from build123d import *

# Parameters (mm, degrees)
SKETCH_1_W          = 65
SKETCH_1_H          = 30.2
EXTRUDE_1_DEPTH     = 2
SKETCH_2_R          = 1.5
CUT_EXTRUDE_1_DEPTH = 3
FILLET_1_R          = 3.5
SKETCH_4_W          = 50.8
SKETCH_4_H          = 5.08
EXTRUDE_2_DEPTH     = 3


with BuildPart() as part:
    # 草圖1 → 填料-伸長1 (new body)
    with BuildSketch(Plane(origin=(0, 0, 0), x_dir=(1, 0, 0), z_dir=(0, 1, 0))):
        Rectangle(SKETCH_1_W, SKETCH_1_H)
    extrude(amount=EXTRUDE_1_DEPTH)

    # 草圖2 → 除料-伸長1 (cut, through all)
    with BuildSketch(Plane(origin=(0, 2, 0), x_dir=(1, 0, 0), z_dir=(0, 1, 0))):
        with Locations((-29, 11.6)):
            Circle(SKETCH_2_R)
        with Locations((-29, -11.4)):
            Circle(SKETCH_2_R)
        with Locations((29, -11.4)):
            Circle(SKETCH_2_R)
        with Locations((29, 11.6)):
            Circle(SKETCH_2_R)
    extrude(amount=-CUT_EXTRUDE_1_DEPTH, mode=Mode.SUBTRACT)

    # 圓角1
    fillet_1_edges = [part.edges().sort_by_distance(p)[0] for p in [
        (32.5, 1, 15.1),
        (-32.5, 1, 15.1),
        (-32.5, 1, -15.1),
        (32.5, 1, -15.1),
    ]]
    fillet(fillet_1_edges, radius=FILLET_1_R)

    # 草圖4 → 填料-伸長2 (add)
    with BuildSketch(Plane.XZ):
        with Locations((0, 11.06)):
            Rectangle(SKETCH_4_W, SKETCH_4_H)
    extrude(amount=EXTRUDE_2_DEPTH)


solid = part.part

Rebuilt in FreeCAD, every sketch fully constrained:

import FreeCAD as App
import Part
import Sketcher

V = App.Vector


def edges_at(feature, points):
    """Names of the edges that pass closest to the given points."""
    edges = feature.Shape.Edges
    near = lambda p: min(range(len(edges)), key=lambda i: edges[i].distToShape(Part.Vertex(*p))[0])
    return sorted({f"Edge{near(p) + 1}" for p in points})

doc = App.newDocument("Part")
params = doc.addObject("Spreadsheet::Sheet", "Params")
for row, (alias, value) in enumerate([
    ("sketch1_width", "65 mm"),
    ("sketch1_height", "30.2 mm"),
    ("pad1_length", "2 mm"),
    ("sketch2_diameter", "3 mm"),
    ("fillet_radius", "3.5 mm"),
    ("sketch3_width", "50.8 mm"),
    ("sketch3_height", "5.08 mm"),
    ("pad2_length", "3 mm"),
], start=1):
    params.set(f"A{row}", alias)
    params.set(f"B{row}", "=" + value)
    params.setAlias(f"B{row}", alias)

body = doc.addObject("PartDesign::Body", "Body")

# Sketch on XZ plane
sketch1 = body.newObject("Sketcher::SketchObject", "Sketch")
sketch1.AttachmentSupport = (doc.getObject("XZ_Plane"), [""])
sketch1.MapMode = "FlatFace"
sketch1.addGeometry(Part.LineSegment(V(-32, -15, 0), V(-32, 15, 0)), False)
sketch1.addGeometry(Part.LineSegment(V(-32, 15, 0), V(32, 15, 0)), False)
sketch1.addGeometry(Part.LineSegment(V(32, 15, 0), V(32, -15, 0)), False)
sketch1.addGeometry(Part.LineSegment(V(32, -15, 0), V(-32, -15, 0)), False)
sketch1.addConstraint(Sketcher.Constraint("Coincident", 0, 2, 1, 1))
sketch1.addConstraint(Sketcher.Constraint("Coincident", 1, 2, 2, 1))
sketch1.addConstraint(Sketcher.Constraint("Coincident", 2, 2, 3, 1))
sketch1.addConstraint(Sketcher.Constraint("Coincident", 3, 2, 0, 1))
sketch1.addConstraint(Sketcher.Constraint("Vertical", 0))
sketch1.addConstraint(Sketcher.Constraint("Horizontal", 1))
sketch1.addConstraint(Sketcher.Constraint("Vertical", 2))
sketch1.addConstraint(Sketcher.Constraint("Horizontal", 3))
sketch1.addConstraint(Sketcher.Constraint("Symmetric", 0, 2, 2, 2, -1, 1))
sketch1.addConstraint(Sketcher.Constraint("DistanceX", 1, 1, 1, 2, 65.0))
sketch1.addConstraint(Sketcher.Constraint("DistanceY", 0, 1, 0, 2, 30.2))
sketch1.setExpression("Constraints[9]", "Params.sketch1_width")
sketch1.setExpression("Constraints[10]", "Params.sketch1_height")
pad1 = body.newObject("PartDesign::Pad", "Pad")
pad1.Profile = sketch1
pad1.setExpression("Length", "Params.pad1_length")
pad1.Reversed = True

# Sketch on XZ plane
sketch2 = body.newObject("Sketcher::SketchObject", "Sketch001")
sketch2.AttachmentSupport = (doc.getObject("XZ_Plane"), [""])
sketch2.MapMode = "FlatFace"
sketch2.AttachmentOffset = App.Placement(V(0, 0, -2), App.Rotation())
sketch2.addGeometry(Part.Circle(V(-29, -11.6, 0), V(0, 0, 1), 1.5), False)
sketch2.addGeometry(Part.Circle(V(-29, 11.4, 0), V(0, 0, 1), 1.5), False)
sketch2.addGeometry(Part.Circle(V(29, 11.4, 0), V(0, 0, 1), 1.5), False)
sketch2.addGeometry(Part.Circle(V(29, -11.6, 0), V(0, 0, 1), 1.5), False)
sketch2.addConstraint(Sketcher.Constraint("Equal", 0, 1))
sketch2.addConstraint(Sketcher.Constraint("Equal", 1, 2))
sketch2.addConstraint(Sketcher.Constraint("Equal", 2, 3))
sketch2.addConstraint(Sketcher.Constraint("Symmetric", 1, 3, 2, 3, -2))
sketch2.addConstraint(Sketcher.Constraint("Symmetric", 0, 3, 3, 3, -2))
sketch2.addConstraint(Sketcher.Constraint("Vertical", 0, 3, 1, 3))
sketch2.addConstraint(Sketcher.Constraint("Diameter", 0, 3.0))
sketch2.addConstraint(Sketcher.Constraint("DistanceX", 0, 3, -1, 1, 29.0))
sketch2.addConstraint(Sketcher.Constraint("DistanceY", 0, 3, 1, 3, 23.0))
sketch2.addConstraint(Sketcher.Constraint("DistanceY", 0, 3, -1, 1, 11.6))
sketch2.setExpression("Constraints[6]", "Params.sketch2_diameter")
pocket1 = body.newObject("PartDesign::Pocket", "Pocket")
pocket1.Profile = sketch2
pocket1.Type = "ThroughAll"
pocket1.Reversed = True
doc.recompute()

fillet = body.newObject("PartDesign::Fillet", "Fillet")
fillet.Base = (pocket1, edges_at(pocket1, [
    (32.5, 1, 15.1),
    (-32.5, 1, 15.1),
    (-32.5, 1, -15.1),
    (32.5, 1, -15.1),
]))
fillet.setExpression("Radius", "Params.fillet_radius")

# Sketch on XZ plane
sketch3 = body.newObject("Sketcher::SketchObject", "Sketch002")
sketch3.AttachmentSupport = (doc.getObject("XZ_Plane"), [""])
sketch3.MapMode = "FlatFace"
sketch3.addGeometry(Part.LineSegment(V(-25, 14, 0), V(-25, 9, 0)), False)
sketch3.addGeometry(Part.LineSegment(V(-25, 9, 0), V(25, 9, 0)), False)
sketch3.addGeometry(Part.LineSegment(V(25, 9, 0), V(25, 14, 0)), False)
sketch3.addGeometry(Part.LineSegment(V(25, 14, 0), V(-25, 14, 0)), False)
sketch3.addConstraint(Sketcher.Constraint("Coincident", 0, 2, 1, 1))
sketch3.addConstraint(Sketcher.Constraint("Coincident", 1, 2, 2, 1))
sketch3.addConstraint(Sketcher.Constraint("Coincident", 2, 2, 3, 1))
sketch3.addConstraint(Sketcher.Constraint("Coincident", 3, 2, 0, 1))
sketch3.addConstraint(Sketcher.Constraint("Vertical", 0))
sketch3.addConstraint(Sketcher.Constraint("Horizontal", 1))
sketch3.addConstraint(Sketcher.Constraint("Vertical", 2))
sketch3.addConstraint(Sketcher.Constraint("Horizontal", 3))
sketch3.addConstraint(Sketcher.Constraint("DistanceX", 1, 1, 1, 2, 50.8))
sketch3.addConstraint(Sketcher.Constraint("DistanceY", 0, 2, 0, 1, 5.08))
sketch3.addConstraint(Sketcher.Constraint("DistanceX", 0, 2, -1, 1, 25.4))
sketch3.addConstraint(Sketcher.Constraint("DistanceY", -1, 1, 2, 2, 13.6))
sketch3.setExpression("Constraints[8]", "Params.sketch3_width")
sketch3.setExpression("Constraints[9]", "Params.sketch3_height")
pad2 = body.newObject("PartDesign::Pad", "Pad001")
pad2.Profile = sketch3
pad2.setExpression("Length", "Params.pad2_length")

doc.recompute()
